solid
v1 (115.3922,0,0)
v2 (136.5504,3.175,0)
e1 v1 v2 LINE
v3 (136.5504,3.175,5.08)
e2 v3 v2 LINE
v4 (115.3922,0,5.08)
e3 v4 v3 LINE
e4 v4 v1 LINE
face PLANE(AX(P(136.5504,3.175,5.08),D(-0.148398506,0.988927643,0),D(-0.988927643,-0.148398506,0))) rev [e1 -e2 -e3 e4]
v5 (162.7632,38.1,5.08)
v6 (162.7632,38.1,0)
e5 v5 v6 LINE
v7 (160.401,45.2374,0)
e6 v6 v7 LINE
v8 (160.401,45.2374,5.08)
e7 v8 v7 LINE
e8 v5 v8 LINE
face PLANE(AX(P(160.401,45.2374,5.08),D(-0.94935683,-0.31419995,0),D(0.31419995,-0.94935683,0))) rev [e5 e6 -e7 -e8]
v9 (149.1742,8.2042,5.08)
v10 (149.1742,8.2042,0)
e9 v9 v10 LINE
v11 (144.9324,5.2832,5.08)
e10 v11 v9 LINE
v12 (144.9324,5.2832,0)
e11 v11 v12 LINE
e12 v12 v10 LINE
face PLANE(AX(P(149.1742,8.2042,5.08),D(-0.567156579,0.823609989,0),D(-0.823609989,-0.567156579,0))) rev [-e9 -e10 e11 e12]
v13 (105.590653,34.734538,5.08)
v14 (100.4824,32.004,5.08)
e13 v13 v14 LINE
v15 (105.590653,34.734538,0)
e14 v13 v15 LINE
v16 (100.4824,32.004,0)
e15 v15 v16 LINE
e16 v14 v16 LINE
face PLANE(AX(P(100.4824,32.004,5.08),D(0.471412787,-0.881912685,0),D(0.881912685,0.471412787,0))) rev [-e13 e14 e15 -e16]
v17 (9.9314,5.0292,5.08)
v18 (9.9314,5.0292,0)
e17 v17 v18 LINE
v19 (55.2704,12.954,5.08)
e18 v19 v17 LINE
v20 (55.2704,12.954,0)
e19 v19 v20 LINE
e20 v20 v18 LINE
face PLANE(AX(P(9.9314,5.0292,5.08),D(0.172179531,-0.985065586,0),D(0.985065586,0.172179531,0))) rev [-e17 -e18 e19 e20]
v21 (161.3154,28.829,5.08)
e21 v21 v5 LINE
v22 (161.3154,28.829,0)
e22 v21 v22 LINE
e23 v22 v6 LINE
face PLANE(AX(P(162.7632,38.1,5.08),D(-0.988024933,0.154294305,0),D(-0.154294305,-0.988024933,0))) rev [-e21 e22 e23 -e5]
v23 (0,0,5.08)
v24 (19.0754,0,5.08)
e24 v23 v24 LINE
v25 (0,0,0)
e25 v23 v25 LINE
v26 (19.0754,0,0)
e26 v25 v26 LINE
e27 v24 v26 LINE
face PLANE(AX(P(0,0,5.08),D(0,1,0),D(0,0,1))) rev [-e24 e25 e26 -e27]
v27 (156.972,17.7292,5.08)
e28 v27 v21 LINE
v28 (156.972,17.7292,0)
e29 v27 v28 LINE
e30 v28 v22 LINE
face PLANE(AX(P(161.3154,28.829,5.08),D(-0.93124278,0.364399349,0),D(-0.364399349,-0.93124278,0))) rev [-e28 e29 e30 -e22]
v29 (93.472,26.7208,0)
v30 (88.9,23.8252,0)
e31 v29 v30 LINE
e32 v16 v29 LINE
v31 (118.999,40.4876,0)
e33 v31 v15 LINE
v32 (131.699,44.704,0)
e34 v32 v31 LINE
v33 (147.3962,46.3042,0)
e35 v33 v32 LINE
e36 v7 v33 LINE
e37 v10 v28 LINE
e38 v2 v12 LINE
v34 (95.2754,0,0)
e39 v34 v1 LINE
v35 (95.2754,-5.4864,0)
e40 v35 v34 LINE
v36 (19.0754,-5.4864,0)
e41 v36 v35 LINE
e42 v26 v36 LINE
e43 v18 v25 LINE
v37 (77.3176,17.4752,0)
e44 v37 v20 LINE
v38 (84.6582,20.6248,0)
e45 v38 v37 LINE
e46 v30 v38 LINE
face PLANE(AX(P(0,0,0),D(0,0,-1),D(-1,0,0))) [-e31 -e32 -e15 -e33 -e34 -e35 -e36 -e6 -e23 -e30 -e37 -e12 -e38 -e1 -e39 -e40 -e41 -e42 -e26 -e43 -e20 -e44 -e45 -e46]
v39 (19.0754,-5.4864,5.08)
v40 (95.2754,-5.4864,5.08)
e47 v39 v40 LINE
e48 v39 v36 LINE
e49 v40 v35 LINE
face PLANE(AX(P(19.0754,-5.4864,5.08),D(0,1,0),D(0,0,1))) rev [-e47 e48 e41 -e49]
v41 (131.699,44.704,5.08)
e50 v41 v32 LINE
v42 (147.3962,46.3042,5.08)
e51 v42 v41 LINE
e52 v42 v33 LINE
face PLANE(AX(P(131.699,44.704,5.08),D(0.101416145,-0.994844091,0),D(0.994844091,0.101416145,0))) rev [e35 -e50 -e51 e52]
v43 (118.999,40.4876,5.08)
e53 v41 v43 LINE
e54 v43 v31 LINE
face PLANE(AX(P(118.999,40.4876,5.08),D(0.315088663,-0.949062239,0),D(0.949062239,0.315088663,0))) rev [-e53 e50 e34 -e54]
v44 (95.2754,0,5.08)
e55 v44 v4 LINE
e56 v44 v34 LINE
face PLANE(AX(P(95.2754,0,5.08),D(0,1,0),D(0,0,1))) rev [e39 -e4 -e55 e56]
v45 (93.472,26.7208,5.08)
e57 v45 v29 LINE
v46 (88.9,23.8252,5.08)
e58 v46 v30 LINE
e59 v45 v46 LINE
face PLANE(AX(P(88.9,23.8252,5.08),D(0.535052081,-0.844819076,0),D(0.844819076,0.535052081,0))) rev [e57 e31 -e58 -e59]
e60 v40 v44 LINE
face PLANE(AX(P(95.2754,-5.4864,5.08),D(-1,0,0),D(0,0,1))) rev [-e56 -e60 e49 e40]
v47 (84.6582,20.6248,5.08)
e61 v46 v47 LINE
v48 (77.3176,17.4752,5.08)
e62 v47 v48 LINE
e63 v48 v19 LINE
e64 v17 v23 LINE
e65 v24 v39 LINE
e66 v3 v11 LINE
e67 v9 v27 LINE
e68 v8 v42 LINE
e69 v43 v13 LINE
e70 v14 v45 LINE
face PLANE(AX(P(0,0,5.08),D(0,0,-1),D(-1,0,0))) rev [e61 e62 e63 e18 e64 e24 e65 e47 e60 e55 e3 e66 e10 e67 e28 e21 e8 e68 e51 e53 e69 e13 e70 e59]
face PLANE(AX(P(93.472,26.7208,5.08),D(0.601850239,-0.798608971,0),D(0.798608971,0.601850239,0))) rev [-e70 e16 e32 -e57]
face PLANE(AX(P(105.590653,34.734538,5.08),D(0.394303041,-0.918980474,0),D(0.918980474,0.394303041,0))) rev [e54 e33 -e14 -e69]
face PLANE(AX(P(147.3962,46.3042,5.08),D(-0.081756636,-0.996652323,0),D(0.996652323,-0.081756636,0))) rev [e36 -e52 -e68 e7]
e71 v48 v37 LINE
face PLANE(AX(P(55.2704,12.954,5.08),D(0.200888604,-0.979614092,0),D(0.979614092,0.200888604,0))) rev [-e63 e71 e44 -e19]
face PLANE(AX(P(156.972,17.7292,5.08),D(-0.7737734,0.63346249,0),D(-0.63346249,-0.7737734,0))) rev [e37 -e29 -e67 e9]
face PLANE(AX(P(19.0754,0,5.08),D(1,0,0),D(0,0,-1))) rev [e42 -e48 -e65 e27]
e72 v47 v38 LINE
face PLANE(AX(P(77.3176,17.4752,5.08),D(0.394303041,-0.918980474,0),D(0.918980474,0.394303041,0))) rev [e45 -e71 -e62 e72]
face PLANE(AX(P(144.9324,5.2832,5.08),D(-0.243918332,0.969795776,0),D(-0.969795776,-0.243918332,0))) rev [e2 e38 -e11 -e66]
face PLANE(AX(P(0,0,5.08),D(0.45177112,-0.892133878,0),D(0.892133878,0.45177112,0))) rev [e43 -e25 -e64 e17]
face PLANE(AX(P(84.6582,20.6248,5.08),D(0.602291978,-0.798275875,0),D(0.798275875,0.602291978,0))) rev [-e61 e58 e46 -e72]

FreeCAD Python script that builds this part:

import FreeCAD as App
import Part
import Sketcher
Q = App.Units.Quantity


def add_polygon(sketch, points):
    """Adds a closed chain of lines whose ends are joined by coincident constraints."""
    first, n = sketch.GeometryCount, len(points)
    for a, b in zip(points, points[1:] + points[:1]):
        sketch.addGeometry(Part.LineSegment(App.Vector(*a, 0), App.Vector(*b, 0)), False)
    for i in range(n):
        sketch.addConstraint(Sketcher.Constraint("Coincident", first + i, 2, first + (i + 1) % n, 1))

doc = App.newDocument("Part")
params = doc.addObject("Spreadsheet::Sheet", "Params")
for row, (alias, value) in enumerate([
    ("sketch1_width", "3 in"),
    ("sketch1_width2", "0.751 in"),
    ("sketch1_width3", "0.792 in"),
    ("sketch1_height", "0.216 in"),
    ("pad1_length", "0.2 in"),
], start=1):
    params.set(f"A{row}", alias)
    params.set(f"B{row}", "=" + value)
    params.setAlias(f"B{row}", alias)

body = doc.addObject("PartDesign::Body", "Body")

sketch1 = body.newObject("Sketcher::SketchObject", "Sketch")
sketch1.AttachmentSupport = (doc.getObject("XY_Plane"), [""])
sketch1.MapMode = "FlatFace"
add_polygon(sketch1, [(10, 5), (0, 0), (19, 0), (19, -5), (95, -5), (95, 0), (115, 0), (137, 3), (145, 5), (149, 8), (157, 18), (161, 29), (163, 38), (160, 45), (147, 46), (132, 45), (119, 40), (106, 35), (100, 32), (93, 27), (89, 24), (85, 21), (77, 17), (55, 13)])
sketch1.addConstraint([
    Sketcher.Constraint("Horizontal", 1),
    Sketcher.Constraint("Vertical", 2),
    Sketcher.Constraint("Horizontal", 3),
    Sketcher.Constraint("Vertical", 4),
    Sketcher.Constraint("Horizontal", 5),
    Sketcher.Constraint("Coincident", 0, 2, -1, 1),
    Sketcher.Constraint("PointOnObject", 4, 2, -1),
    Sketcher.Constraint("Parallel", 16, 21),
    Sketcher.Constraint("DistanceX", 3, 1, 3, 2, Q("3 in")),
    Sketcher.Constraint("DistanceY", -1, 1, 11, 2, Q("1.5 in")),
    Sketcher.Constraint("DistanceX", -1, 1, 19, 2, Q("3.5 in")),
    Sketcher.Constraint("DistanceY", 8, 2, 13, 2, Q("1.5 in")),
    Sketcher.Constraint("DistanceX", 15, 2, 14, 2, Q("0.5 in")),
    Sketcher.Constraint("DistanceY", 17, 2, 14, 2, Q("0.5 in")),
    Sketcher.Constraint("DistanceX", 1, 1, 1, 2, Q("0.751 in")),
    Sketcher.Constraint("DistanceX", 5, 1, 5, 2, Q("0.792 in")),
    Sketcher.Constraint("DistanceY", 2, 2, 2, 1, Q("0.216 in")),
    Sketcher.Constraint("DistanceX", -1, 1, 9, 2, Q("6.18 in")),
    Sketcher.Constraint("DistanceY", -1, 1, 14, 2, Q("1.76 in")),
    Sketcher.Constraint("DistanceX", -1, 1, 18, 2, Q("3.68 in")),
    Sketcher.Constraint("DistanceY", -1, 1, 22, 2, Q("0.51 in")),
    Sketcher.Constraint("DistanceX", 6, 2, 7, 2, Q("0.33 in")),
    Sketcher.Constraint("DistanceX", 5, 2, 8, 2, Q("1.33 in")),
    Sketcher.Constraint("DistanceY", 7, 2, 9, 2, Q("0.49 in")),
    Sketcher.Constraint("DistanceY", 6, 2, 10, 2, Q("1.01 in")),
    Sketcher.Constraint("DistanceX", 13, 2, 8, 2, Q("0.07 in")),
    Sketcher.Constraint("DistanceX", 14, 2, 12, 2, Q("1.13 in")),
    Sketcher.Constraint("DistanceY", 20, 2, 18, 2, Q("0.24 in")),
    Sketcher.Constraint("DistanceY", 21, 2, 19, 2, Q("0.25 in")),
    Sketcher.Constraint("DistanceX", 23, 2, 1, 2, Q("0.36 in")),
    Sketcher.Constraint("DistanceY", 23, 2, 21, 2, Q("0.49 in")),
    Sketcher.Constraint("DistanceX", -1, 1, 6, 2, Q("5.376 in")),
    Sketcher.Constraint("DistanceY", -1, 1, 6, 2, Q("0.125 in")),
    Sketcher.Constraint("DistanceY", -1, 1, 7, 2, Q("0.208 in")),
    Sketcher.Constraint("DistanceY", -1, 1, 8, 2, Q("0.323 in")),
    Sketcher.Constraint("DistanceX", -1, 1, 10, 2, Q("6.351 in")),
    Sketcher.Constraint("DistanceX", -1, 1, 11, 2, Q("6.408 in")),
    Sketcher.Constraint("DistanceX", -1, 1, 12, 2, Q("6.315 in")),
    Sketcher.Constraint("DistanceY", -1, 1, 12, 2, Q("1.781 in")),
    Sketcher.Constraint("DistanceY", -1, 1, 15, 2, Q("1.594 in")),
    Sketcher.Constraint("DistanceX", -1, 1, 17, 2, Q("3.956 in")),
    Sketcher.Constraint("DistanceY", -1, 1, 18, 2, Q("1.052 in")),
    Sketcher.Constraint("DistanceY", -1, 1, 19, 2, Q("0.938 in")),
    Sketcher.Constraint("DistanceX", -1, 1, 20, 2, Q("3.333 in")),
    Sketcher.Constraint("DistanceX", -1, 1, 21, 2, Q("3.044 in")),
    Sketcher.Constraint("DistanceX", -1, 1, 22, 2, Q("2.176 in")),
    Sketcher.Constraint("Distance", 16, Q("14.590459 mm")),
])
sketch1.setExpression("Constraints[32]", "Params.sketch1_width")
sketch1.setExpression("Constraints[38]", "Params.sketch1_width2")
sketch1.setExpression("Constraints[39]", "Params.sketch1_width3")
sketch1.setExpression("Constraints[40]", "Params.sketch1_height")
pad1 = body.newObject("PartDesign::Pad", "Pad")
pad1.Profile = sketch1
pad1.setExpression("Length", "Params.pad1_length")

doc.recompute()
